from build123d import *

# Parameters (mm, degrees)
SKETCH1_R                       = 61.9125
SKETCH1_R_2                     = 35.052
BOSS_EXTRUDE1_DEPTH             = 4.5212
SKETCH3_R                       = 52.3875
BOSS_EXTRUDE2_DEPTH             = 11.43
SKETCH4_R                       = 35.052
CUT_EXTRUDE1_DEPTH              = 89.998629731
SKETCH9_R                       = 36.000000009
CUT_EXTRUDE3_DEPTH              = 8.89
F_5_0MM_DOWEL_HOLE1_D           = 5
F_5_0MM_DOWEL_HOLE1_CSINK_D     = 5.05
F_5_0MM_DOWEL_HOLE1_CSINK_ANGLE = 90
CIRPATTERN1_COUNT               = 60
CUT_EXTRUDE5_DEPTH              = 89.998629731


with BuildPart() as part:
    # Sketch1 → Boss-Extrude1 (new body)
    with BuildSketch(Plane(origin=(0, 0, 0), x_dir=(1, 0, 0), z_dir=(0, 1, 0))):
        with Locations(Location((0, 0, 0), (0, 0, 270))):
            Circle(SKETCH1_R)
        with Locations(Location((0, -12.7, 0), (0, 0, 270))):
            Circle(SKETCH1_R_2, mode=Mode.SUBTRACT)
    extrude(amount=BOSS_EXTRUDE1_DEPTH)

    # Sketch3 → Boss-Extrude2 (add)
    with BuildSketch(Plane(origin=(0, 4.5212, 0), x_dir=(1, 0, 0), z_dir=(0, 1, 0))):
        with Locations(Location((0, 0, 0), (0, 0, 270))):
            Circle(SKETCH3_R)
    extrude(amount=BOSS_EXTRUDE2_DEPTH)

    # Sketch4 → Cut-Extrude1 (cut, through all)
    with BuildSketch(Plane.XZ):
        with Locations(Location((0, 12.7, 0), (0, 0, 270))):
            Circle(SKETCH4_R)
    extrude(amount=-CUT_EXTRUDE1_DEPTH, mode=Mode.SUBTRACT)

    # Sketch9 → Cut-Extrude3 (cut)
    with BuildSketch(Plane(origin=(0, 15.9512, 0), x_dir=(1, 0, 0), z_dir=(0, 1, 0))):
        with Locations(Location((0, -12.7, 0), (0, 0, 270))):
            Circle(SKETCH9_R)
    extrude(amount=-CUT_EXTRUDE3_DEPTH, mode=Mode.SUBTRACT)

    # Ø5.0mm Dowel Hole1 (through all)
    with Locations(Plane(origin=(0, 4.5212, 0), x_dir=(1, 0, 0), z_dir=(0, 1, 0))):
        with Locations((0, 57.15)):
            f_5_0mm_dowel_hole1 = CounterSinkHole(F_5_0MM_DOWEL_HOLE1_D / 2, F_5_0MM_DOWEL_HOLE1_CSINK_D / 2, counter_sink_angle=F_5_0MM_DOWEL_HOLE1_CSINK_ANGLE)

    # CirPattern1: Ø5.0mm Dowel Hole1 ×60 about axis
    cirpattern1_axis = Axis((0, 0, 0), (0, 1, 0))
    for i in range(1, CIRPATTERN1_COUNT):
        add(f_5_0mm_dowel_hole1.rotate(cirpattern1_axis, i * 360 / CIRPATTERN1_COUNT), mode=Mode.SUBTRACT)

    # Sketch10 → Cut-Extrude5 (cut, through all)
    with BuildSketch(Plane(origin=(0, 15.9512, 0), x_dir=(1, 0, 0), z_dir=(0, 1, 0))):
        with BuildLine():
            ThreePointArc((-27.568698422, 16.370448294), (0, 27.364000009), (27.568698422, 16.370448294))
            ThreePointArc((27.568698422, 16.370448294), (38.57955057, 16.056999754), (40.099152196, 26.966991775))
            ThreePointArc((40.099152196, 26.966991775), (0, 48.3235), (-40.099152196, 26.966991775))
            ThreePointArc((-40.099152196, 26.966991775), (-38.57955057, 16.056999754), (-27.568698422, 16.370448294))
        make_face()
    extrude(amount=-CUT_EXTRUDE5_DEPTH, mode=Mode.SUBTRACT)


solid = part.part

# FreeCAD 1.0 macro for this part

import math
import FreeCAD as App
import Part
import Sketcher

V = App.Vector
Q = App.Units.Quantity

doc = App.newDocument("Part")
body = doc.addObject("PartDesign::Body", "Body")

sketch1 = body.newObject("Sketcher::SketchObject", "Sketch")
sketch1.AttachmentSupport = (doc.getObject("XZ_Plane"), [""])
sketch1.MapMode = "FlatFace"
sketch1.addGeometry([
    Part.Circle(V(0, 0, 0), V(0, 0, 1), 62),
    Part.Circle(V(0, 13, 0), V(0, 0, 1), 35),
], False)
sketch1.addConstraint([
    Sketcher.Constraint("Coincident", 0, 3, -1, 1),
    Sketcher.Constraint("PointOnObject", 1, 3, -2),
    Sketcher.Constraint("Diameter", 1, Q("2.76 in")),
    Sketcher.Constraint("Diameter", 0, Q("4.875 in")),
    Sketcher.Constraint("DistanceY", -1, 1, 1, 3, Q("0.5 in")),
])
pad1 = body.newObject("PartDesign::Pad", "Pad")
pad1.Profile = sketch1
pad1.Length = Q("0.178 in")
pad1.Reversed = True

sketch2 = body.newObject("Sketcher::SketchObject", "Sketch001")
sketch2.AttachmentSupport = (doc.getObject("XZ_Plane"), [""])
sketch2.MapMode = "FlatFace"
sketch2.AttachmentOffset = App.Placement(V(0, 0, -0.178 * 25.4), App.Rotation())
sketch2.addGeometry(Part.Circle(V(0, 0, 0), V(0, 0, 1), 52), False)
sketch2.addConstraint([
    Sketcher.Constraint("Coincident", 0, 3, -1, 1),
    Sketcher.Constraint("Diameter", 0, Q("4.125 in")),
])
pad2 = body.newObject("PartDesign::Pad", "Pad001")
pad2.Profile = sketch2
pad2.Length = Q("0.45 in")
pad2.Reversed = True

sketch3 = body.newObject("Sketcher::SketchObject", "Sketch002")
sketch3.AttachmentSupport = (doc.getObject("XZ_Plane"), [""])
sketch3.MapMode = "FlatFace"
sketch3.addGeometry(Part.Circle(V(0, 13, 0), V(0, 0, 1), 35), False)
sketch3.addConstraint([
    Sketcher.Constraint("PointOnObject", 0, 3, -2),
    Sketcher.Constraint("Diameter", 0, Q("2.76 in")),
    Sketcher.Constraint("DistanceY", -1, 1, 0, 3, Q("0.5 in")),
])
pocket1 = body.newObject("PartDesign::Pocket", "Pocket")
pocket1.Profile = sketch3
pocket1.Type = "ThroughAll"

sketch4 = body.newObject("Sketcher::SketchObject", "Sketch003")
sketch4.AttachmentSupport = (doc.getObject("XZ_Plane"), [""])
sketch4.MapMode = "FlatFace"
sketch4.AttachmentOffset = App.Placement(V(0, 0, -0.628 * 25.4), App.Rotation())
sketch4.addGeometry(Part.Circle(V(0, 13, 0), V(0, 0, 1), 36), False)
sketch4.addConstraint([
    Sketcher.Constraint("PointOnObject", 0, 3, -2),
    Sketcher.Constraint("DistanceY", -1, 1, 0, 3, Q("0.5 in")),
    Sketcher.Constraint("Diameter", 0, Q("72 mm")),
])
pocket2 = body.newObject("PartDesign::Pocket", "Pocket001")
pocket2.Profile = sketch4
pocket2.Length = Q("0.35 in")
pocket2.Reversed = True

sketch5 = body.newObject("Sketcher::SketchObject", "Sketch004")
sketch5.AttachmentSupport = (doc.getObject("XZ_Plane"), [""])
sketch5.MapMode = "FlatFace"
sketch5.AttachmentOffset = App.Placement(V(0, 0, -0.178 * 25.4), App.Rotation())
sketch5.addGeometry(Part.Circle(V(0, -57.1, 0), V(0, 0, 1), 2.5), False)
sketch5.addConstraint([
    Sketcher.Constraint("PointOnObject", 0, 3, -2),
    Sketcher.Constraint("Diameter", 0, Q("5 mm")),
    Sketcher.Constraint("DistanceY", 0, 3, -1, 1, Q("2.25 in")),
])
doc.recompute()
hole = body.newObject("PartDesign::Hole", "Hole")
hole.Profile = sketch5
hole.ThreadType = "None"
hole.Diameter = 5
hole.DepthType = "ThroughAll"
hole.HoleCutType = "Countersink"
hole.HoleCutDiameter = 5.05
hole.HoleCutCountersinkAngle = 90
hole.Reversed = True
doc.recompute()

polarpattern = body.newObject("PartDesign::PolarPattern", "PolarPattern")
polarpattern.Originals = [hole]
polarpattern.Axis = (doc.getObject("Y_Axis"), [""])
polarpattern.Angle = 360
polarpattern.Occurrences = 60
body.Tip = polarpattern

sketch6 = body.newObject("Sketcher::SketchObject", "Sketch005")
sketch6.AttachmentSupport = (doc.getObject("XZ_Plane"), [""])
sketch6.MapMode = "FlatFace"
sketch6.AttachmentOffset = App.Placement(V(0, 0, -0.628 * 25.4), App.Rotation())
sketch6.addGeometry([
    Part.ArcOfCircle(Part.Circle(V(0, 13, 0), V(0, 0, 1), 40), math.radians(-133), math.radians(-47)),
    Part.ArcOfCircle(Part.Circle(V(33, -22, 0), V(0, 0, 1), 8), math.radians(-34), math.radians(133)),
    Part.ArcOfCircle(Part.Circle(V(0, 0, 0), V(0, 0, 1), 48), math.radians(-146), math.radians(-34)),
    Part.ArcOfCircle(Part.Circle(V(-33, -22, 0), V(0, 0, 1), 8), math.radians(47), math.radians(214)),
], False)
sketch6.addConstraint([
    Sketcher.Constraint("Tangent", 0, 2, 1, 2),
    Sketcher.Constraint("Tangent", 1, 1, 2, 2),
    Sketcher.Constraint("Tangent", 2, 1, 3, 2),
    Sketcher.Constraint("Tangent", 3, 1, 0, 1),
    Sketcher.Constraint("Coincident", 2, 3, -1, 1),
    Sketcher.Constraint("Equal", 1, 3),
    Sketcher.Constraint("PointOnObject", 0, 3, -2),
    Sketcher.Constraint("Radius", 1, Q("0.325 in")),
    Sketcher.Constraint("DistanceY", -1, 1, 0, 3, Q("0.5 in")),
    Sketcher.Constraint("Radius", 2, Q("1.9025 in")),
    Sketcher.Constraint("Radius", 0, Q("40.064 mm")),
])
pocket3 = body.newObject("PartDesign::Pocket", "Pocket002")
pocket3.Profile = sketch6
pocket3.Type = "ThroughAll"
pocket3.Reversed = True

doc.recompute()
